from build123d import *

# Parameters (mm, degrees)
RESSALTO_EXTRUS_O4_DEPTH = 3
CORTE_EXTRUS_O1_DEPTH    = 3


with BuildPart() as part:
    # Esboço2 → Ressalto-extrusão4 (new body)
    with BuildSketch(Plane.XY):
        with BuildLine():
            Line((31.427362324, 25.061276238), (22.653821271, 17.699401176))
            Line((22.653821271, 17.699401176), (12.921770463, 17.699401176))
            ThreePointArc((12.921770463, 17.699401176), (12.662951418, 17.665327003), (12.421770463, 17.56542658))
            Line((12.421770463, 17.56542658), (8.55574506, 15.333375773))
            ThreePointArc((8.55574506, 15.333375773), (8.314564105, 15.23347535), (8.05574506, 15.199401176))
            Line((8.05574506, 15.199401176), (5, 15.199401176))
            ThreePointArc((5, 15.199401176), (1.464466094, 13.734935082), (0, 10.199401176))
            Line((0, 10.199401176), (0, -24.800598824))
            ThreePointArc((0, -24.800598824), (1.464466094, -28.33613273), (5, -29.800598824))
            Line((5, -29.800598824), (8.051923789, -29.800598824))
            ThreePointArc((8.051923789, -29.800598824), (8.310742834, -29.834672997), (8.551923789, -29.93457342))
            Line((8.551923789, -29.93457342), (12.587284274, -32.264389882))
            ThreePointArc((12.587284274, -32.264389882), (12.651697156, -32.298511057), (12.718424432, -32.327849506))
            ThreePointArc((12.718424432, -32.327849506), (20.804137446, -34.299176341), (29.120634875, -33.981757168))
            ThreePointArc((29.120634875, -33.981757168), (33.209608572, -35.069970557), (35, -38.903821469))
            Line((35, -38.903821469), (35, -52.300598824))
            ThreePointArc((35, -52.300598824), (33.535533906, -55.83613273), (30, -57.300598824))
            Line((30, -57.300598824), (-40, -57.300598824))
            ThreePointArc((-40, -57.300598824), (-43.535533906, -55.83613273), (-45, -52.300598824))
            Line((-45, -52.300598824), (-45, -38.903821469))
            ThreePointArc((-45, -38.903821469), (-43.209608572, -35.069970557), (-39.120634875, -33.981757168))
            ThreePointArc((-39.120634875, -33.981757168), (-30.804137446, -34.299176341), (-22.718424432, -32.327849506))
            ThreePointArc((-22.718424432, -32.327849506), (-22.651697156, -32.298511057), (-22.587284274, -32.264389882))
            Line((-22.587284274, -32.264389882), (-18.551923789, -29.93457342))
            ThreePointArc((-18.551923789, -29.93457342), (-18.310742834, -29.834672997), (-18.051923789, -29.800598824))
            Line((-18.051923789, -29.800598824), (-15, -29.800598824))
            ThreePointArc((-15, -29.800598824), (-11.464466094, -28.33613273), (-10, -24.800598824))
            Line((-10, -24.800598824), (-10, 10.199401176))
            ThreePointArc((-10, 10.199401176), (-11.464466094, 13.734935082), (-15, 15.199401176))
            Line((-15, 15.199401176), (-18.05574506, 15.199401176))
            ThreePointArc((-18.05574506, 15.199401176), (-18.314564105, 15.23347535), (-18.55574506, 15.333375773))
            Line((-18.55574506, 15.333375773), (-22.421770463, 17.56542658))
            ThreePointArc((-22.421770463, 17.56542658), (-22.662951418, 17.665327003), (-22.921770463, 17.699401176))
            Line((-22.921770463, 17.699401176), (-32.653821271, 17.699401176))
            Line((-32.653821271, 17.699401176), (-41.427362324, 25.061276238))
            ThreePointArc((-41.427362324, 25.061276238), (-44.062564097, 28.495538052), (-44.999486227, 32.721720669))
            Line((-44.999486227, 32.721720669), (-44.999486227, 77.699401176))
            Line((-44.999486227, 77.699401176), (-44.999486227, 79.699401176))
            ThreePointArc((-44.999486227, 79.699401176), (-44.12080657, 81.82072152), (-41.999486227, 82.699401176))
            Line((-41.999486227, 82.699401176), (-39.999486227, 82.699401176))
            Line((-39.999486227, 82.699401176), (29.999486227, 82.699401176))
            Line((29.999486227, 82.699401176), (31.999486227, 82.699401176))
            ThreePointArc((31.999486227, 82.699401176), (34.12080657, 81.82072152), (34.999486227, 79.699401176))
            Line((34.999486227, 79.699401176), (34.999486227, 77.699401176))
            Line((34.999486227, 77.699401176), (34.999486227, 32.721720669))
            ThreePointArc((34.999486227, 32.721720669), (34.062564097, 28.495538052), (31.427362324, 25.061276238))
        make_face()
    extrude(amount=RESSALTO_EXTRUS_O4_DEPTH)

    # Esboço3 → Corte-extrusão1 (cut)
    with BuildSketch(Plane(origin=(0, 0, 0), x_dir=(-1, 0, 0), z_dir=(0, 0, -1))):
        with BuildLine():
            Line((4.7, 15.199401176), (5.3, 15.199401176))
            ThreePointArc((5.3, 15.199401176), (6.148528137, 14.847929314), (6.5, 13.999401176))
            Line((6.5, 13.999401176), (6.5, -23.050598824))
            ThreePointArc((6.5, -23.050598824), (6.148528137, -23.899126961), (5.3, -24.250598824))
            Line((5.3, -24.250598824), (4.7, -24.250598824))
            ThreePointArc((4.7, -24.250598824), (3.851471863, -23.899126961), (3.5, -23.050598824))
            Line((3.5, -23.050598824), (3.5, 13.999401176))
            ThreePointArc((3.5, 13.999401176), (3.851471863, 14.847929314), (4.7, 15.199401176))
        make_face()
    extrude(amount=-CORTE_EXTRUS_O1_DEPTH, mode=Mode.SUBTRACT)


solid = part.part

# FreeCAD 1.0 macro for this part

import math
import FreeCAD as App
import Part
import Sketcher
from FreeCAD import Vector
Q = App.Units.Quantity

doc = App.newDocument("Part")
body = doc.addObject("PartDesign::Body", "Body")

# Sketch on XY plane
sketch1 = body.newObject("Sketcher::SketchObject", "Sketch")
sketch1.AttachmentSupport = (doc.getObject("XY_Plane"), [""])
sketch1.MapMode = "FlatFace"
sketch1.addGeometry([
    Part.LineSegment(Vector(22.653821, 17.699401, 0), Vector(31.427362, 25.061276, 0)),  # 0
    Part.ArcOfCircle(Part.Circle(Vector(24.999486, 32.721721, 0), Vector(0, 0, 1), 10), math.radians(-50), math.radians(0)),  # 1
    Part.LineSegment(Vector(34.999486, 32.721721, 0), Vector(34.999486, 79.699401, 0)),  # 2
    Part.ArcOfCircle(Part.Circle(Vector(31.999486, 79.699401, 0), Vector(0, 0, 1), 3), math.radians(0), math.radians(90)),  # 3
    Part.LineSegment(Vector(31.999486, 82.699401, 0), Vector(-41.999486, 82.699401, 0)),  # 4
    Part.ArcOfCircle(Part.Circle(Vector(-41.999486, 79.699401, 0), Vector(0, 0, 1), 3), math.radians(90), math.radians(180)),  # 5
    Part.LineSegment(Vector(-44.999486, 79.699401, 0), Vector(-44.999486, 32.721721, 0)),  # 6
    Part.ArcOfCircle(Part.Circle(Vector(-34.999486, 32.721721, 0), Vector(0, 0, 1), 10), math.radians(-180), math.radians(-130)),  # 7
    Part.LineSegment(Vector(-41.427362, 25.061276, 0), Vector(-32.653821, 17.699401, 0)),  # 8
    Part.LineSegment(Vector(-32.653821, 17.699401, 0), Vector(-22.92177, 17.699401, 0)),  # 9
    Part.ArcOfCircle(Part.Circle(Vector(-22.92177, 16.699401, 0), Vector(0, 0, 1), 1), math.radians(60), math.radians(90)),  # 10
    Part.LineSegment(Vector(-22.42177, 17.565427, 0), Vector(-18.555745, 15.333376, 0)),  # 11
    Part.ArcOfCircle(Part.Circle(Vector(-18.055745, 16.199401, 0), Vector(0, 0, 1), 1), math.radians(-120), math.radians(-90)),  # 12
    Part.LineSegment(Vector(-18.055745, 15.199401, 0), Vector(-15, 15.199401, 0)),  # 13
    Part.ArcOfCircle(Part.Circle(Vector(-15, 10.199401, 0), Vector(0, 0, 1), 5), math.radians(0), math.radians(90)),  # 14
    Part.LineSegment(Vector(-10, 10.199401, 0), Vector(-10, -24.800599, 0)),  # 15
    Part.ArcOfCircle(Part.Circle(Vector(-15, -24.800599, 0), Vector(0, 0, 1), 5), math.radians(-90), math.radians(0)),  # 16
    Part.LineSegment(Vector(-15, -29.800599, 0), Vector(-18.051924, -29.800599, 0)),  # 17
    Part.ArcOfCircle(Part.Circle(Vector(-18.051924, -30.800599, 0), Vector(0, 0, 1), 1), math.radians(90), math.radians(120)),  # 18
    Part.LineSegment(Vector(-18.551924, -29.934573, 0), Vector(-22.587284, -32.26439, 0)),  # 19
    Part.ArcOfCircle(Part.Circle(Vector(-23.087284, -31.398365, 0), Vector(0, 0, 1), 1), math.radians(-68.354683), math.radians(-59.999999)),  # 20
    Part.ArcOfCircle(Part.Circle(Vector(-33.825, -4.340537, 0), Vector(0, 0, 1), 30.110558), math.radians(-100.129467), math.radians(-68.354682)),  # 21
    Part.ArcOfCircle(Part.Circle(Vector(-40, -38.903821, 0), Vector(0, 0, 1), 5), math.radians(79.870533), math.radians(180)),  # 22
    Part.LineSegment(Vector(-45, -38.903821, 0), Vector(-45, -52.300599, 0)),  # 23
    Part.ArcOfCircle(Part.Circle(Vector(-40, -52.300599, 0), Vector(0, 0, 1), 5), math.radians(180), math.radians(270)),  # 24
    Part.LineSegment(Vector(-40, -57.300599, 0), Vector(30, -57.300599, 0)),  # 25
    Part.ArcOfCircle(Part.Circle(Vector(30, -52.300599, 0), Vector(0, 0, 1), 5), math.radians(-90), math.radians(0)),  # 26
    Part.LineSegment(Vector(35, -52.300599, 0), Vector(35, -38.903821, 0)),  # 27
    Part.ArcOfCircle(Part.Circle(Vector(30, -38.903821, 0), Vector(0, 0, 1), 5), math.radians(0), math.radians(100.129467)),  # 28
    Part.ArcOfCircle(Part.Circle(Vector(23.825, -4.340537, 0), Vector(0, 0, 1), 30.110558), math.radians(-111.645318), math.radians(-79.870533)),  # 29
    Part.ArcOfCircle(Part.Circle(Vector(13.087284, -31.398365, 0), Vector(0, 0, 1), 1), math.radians(-120.000001), math.radians(-111.645317)),  # 30
    Part.LineSegment(Vector(12.587284, -32.26439, 0), Vector(8.551924, -29.934573, 0)),  # 31
    Part.ArcOfCircle(Part.Circle(Vector(8.051924, -30.800599, 0), Vector(0, 0, 1), 1), math.radians(60), math.radians(90)),  # 32
    Part.LineSegment(Vector(8.051924, -29.800599, 0), Vector(5, -29.800599, 0)),  # 33
    Part.ArcOfCircle(Part.Circle(Vector(5, -24.800599, 0), Vector(0, 0, 1), 5), math.radians(180), math.radians(270)),  # 34
    Part.LineSegment(Vector(0, -24.800599, 0), Vector(0, 10.199401, 0)),  # 35
    Part.ArcOfCircle(Part.Circle(Vector(5, 10.199401, 0), Vector(0, 0, 1), 5), math.radians(90), math.radians(180)),  # 36
    Part.LineSegment(Vector(5, 15.199401, 0), Vector(8.055745, 15.199401, 0)),  # 37
    Part.ArcOfCircle(Part.Circle(Vector(8.055745, 16.199401, 0), Vector(0, 0, 1), 1), math.radians(-90), math.radians(-60)),  # 38
    Part.LineSegment(Vector(8.555745, 15.333376, 0), Vector(12.42177, 17.565427, 0)),  # 39
    Part.ArcOfCircle(Part.Circle(Vector(12.92177, 16.699401, 0), Vector(0, 0, 1), 1), math.radians(90), math.radians(120)),  # 40
    Part.LineSegment(Vector(12.92177, 17.699401, 0), Vector(22.653821, 17.699401, 0)),  # 41
], False)
sketch1.addConstraint([
    Sketcher.Constraint("Tangent", 0, 2, 1, 1),
    Sketcher.Constraint("Tangent", 1, 2, 2, 1),
    Sketcher.Constraint("Tangent", 2, 2, 3, 1),
    Sketcher.Constraint("Tangent", 3, 2, 4, 1),
    Sketcher.Constraint("Tangent", 4, 2, 5, 1),
    Sketcher.Constraint("Tangent", 5, 2, 6, 1),
    Sketcher.Constraint("Tangent", 6, 2, 7, 1),
    Sketcher.Constraint("Tangent", 7, 2, 8, 1),
    Sketcher.Constraint("Coincident", 8, 2, 9, 1),
    Sketcher.Constraint("Tangent", 9, 2, 10, 2),
    Sketcher.Constraint("Tangent", 10, 1, 11, 1),
    Sketcher.Constraint("Tangent", 11, 2, 12, 1),
    Sketcher.Constraint("Tangent", 12, 2, 13, 1),
    Sketcher.Constraint("Tangent", 13, 2, 14, 2),
    Sketcher.Constraint("Tangent", 14, 1, 15, 1),
    Sketcher.Constraint("Tangent", 15, 2, 16, 2),
    Sketcher.Constraint("Tangent", 16, 1, 17, 1),
    Sketcher.Constraint("Tangent", 17, 2, 18, 1),
    Sketcher.Constraint("Tangent", 18, 2, 19, 1),
    Sketcher.Constraint("Tangent", 19, 2, 20, 2),
    Sketcher.Constraint("Tangent", 20, 1, 21, 2),
    Sketcher.Constraint("Tangent", 21, 1, 22, 1),
    Sketcher.Constraint("Tangent", 22, 2, 23, 1),
    Sketcher.Constraint("Tangent", 23, 2, 24, 1),
    Sketcher.Constraint("Tangent", 24, 2, 25, 1),
    Sketcher.Constraint("Tangent", 25, 2, 26, 1),
    Sketcher.Constraint("Tangent", 26, 2, 27, 1),
    Sketcher.Constraint("Tangent", 27, 2, 28, 1),
    Sketcher.Constraint("Tangent", 28, 2, 29, 2),
    Sketcher.Constraint("Tangent", 29, 1, 30, 2),
    Sketcher.Constraint("Tangent", 30, 1, 31, 1),
    Sketcher.Constraint("Tangent", 31, 2, 32, 1),
    Sketcher.Constraint("Tangent", 32, 2, 33, 1),
    Sketcher.Constraint("Tangent", 33, 2, 34, 2),
    Sketcher.Constraint("Tangent", 34, 1, 35, 1),
    Sketcher.Constraint("Tangent", 35, 2, 36, 2),
    Sketcher.Constraint("Tangent", 36, 1, 37, 1),
    Sketcher.Constraint("Tangent", 37, 2, 38, 1),
    Sketcher.Constraint("Tangent", 38, 2, 39, 1),
    Sketcher.Constraint("Tangent", 39, 2, 40, 2),
    Sketcher.Constraint("Tangent", 40, 1, 41, 1),
    Sketcher.Constraint("Coincident", 41, 2, 0, 1),
    Sketcher.Constraint("Vertical", 2),
    Sketcher.Constraint("Horizontal", 4),
    Sketcher.Constraint("Vertical", 6),
    Sketcher.Constraint("Horizontal", 9),
    Sketcher.Constraint("Horizontal", 13),
    Sketcher.Constraint("Vertical", 15),
    Sketcher.Constraint("Horizontal", 17),
    Sketcher.Constraint("Vertical", 23),
    Sketcher.Constraint("Horizontal", 25),
    Sketcher.Constraint("Vertical", 27),
    Sketcher.Constraint("Horizontal", 33),
    Sketcher.Constraint("Vertical", 35),
    Sketcher.Constraint("Horizontal", 37),
    Sketcher.Constraint("Horizontal", 41),
    Sketcher.Constraint("Equal", 3, 5),
    Sketcher.Constraint("Equal", 1, 7),
    Sketcher.Constraint("Equal", 10, 12),
    Sketcher.Constraint("Equal", 14, 16),
    Sketcher.Constraint("Equal", 12, 18),
    Sketcher.Constraint("Equal", 18, 20),
    Sketcher.Constraint("Equal", 16, 22),
    Sketcher.Constraint("Equal", 22, 24),
    Sketcher.Constraint("Equal", 24, 26),
    Sketcher.Constraint("Equal", 26, 28),
    Sketcher.Constraint("Equal", 21, 29),
    Sketcher.Constraint("Equal", 20, 30),
    Sketcher.Constraint("Equal", 30, 32),
    Sketcher.Constraint("Equal", 28, 34),
    Sketcher.Constraint("Equal", 34, 36),
    Sketcher.Constraint("Equal", 32, 38),
    Sketcher.Constraint("Equal", 38, 40),
    Sketcher.Constraint("PointOnObject", 34, 1, -2),
    Sketcher.Constraint("Parallel", 11, 31),
    Sketcher.Constraint("Parallel", 19, 39),
    Sketcher.Constraint("Horizontal", 1, 3, 7, 3),
    Sketcher.Constraint("Horizontal", 22, 3, 28, 3),
    Sketcher.Constraint("Horizontal", 21, 3, 29, 3),
    Sketcher.Constraint("Horizontal", 20, 3, 30, 3),
    Sketcher.Constraint("Horizontal", 18, 3, 32, 3),
    Sketcher.Constraint("Horizontal", 14, 3, 36, 3),
    Sketcher.Constraint("Horizontal", 10, 3, 40, 3),
    Sketcher.Constraint("Horizontal", 0, 2, 7, 2),
    Sketcher.Constraint("Horizontal", 19, 2, 30, 1),
    Sketcher.Constraint("Equal", 17, 33),
    Sketcher.Constraint("Equal", 13, 37),
    Sketcher.Constraint("Equal", 9, 41),
    Sketcher.Constraint("Radius", 1, 10.0),
    Sketcher.Constraint("Radius", 3, 3.0),
    Sketcher.Constraint("Radius", 10, 1.0),
    Sketcher.Constraint("Radius", 14, 5.0),
    Sketcher.Constraint("DistanceX", 25, 1, 25, 2, 70.0),
    Sketcher.Constraint("DistanceY", 15, 2, 15, 1, 35.0),
    Sketcher.Constraint("Angle", 0, Q("40 deg")),
    Sketcher.Constraint("Angle", 11, Q("-30 deg")),
    Sketcher.Constraint("DistanceX", 14, 3, -1, 1, 15.0),
    Sketcher.Constraint("DistanceX", 21, 3, -1, 1, 33.825),
    Sketcher.Constraint("Radius", 21, 30.110558),
    Sketcher.Constraint("Distance", 11, 4.464102),
    Sketcher.Constraint("DistanceX", 9, 1, 9, 2, 9.732051),
    Sketcher.Constraint("DistanceY", 2, 1, 2, 2, 46.977681),
    Sketcher.Constraint("DistanceY", -1, 1, 3, 3, 79.699401),
    Sketcher.Constraint("DistanceY", -1, 1, 10, 3, 16.699401),
    Sketcher.Constraint("DistanceY", 24, 3, -1, 1, 52.300599),
    Sketcher.Constraint("DistanceX", 4, 2, 4, 1, 73.998972),
    Sketcher.Constraint("DistanceX", 17, 2, 17, 1, 3.051924),
    Sketcher.Constraint("DistanceY", 23, 2, 23, 1, 13.396777),
])
pad1 = body.newObject("PartDesign::Pad", "Pad")
pad1.Profile = sketch1
pad1.Length = 3

# Sketch on XY plane
sketch2 = body.newObject("Sketcher::SketchObject", "Sketch001")
sketch2.AttachmentSupport = (doc.getObject("XY_Plane"), [""])
sketch2.MapMode = "FlatFace"
sketch2.addGeometry([
    Part.LineSegment(Vector(-5.3, 15.199401, 0), Vector(-4.7, 15.199401, 0)),  # 0
    Part.ArcOfCircle(Part.Circle(Vector(-4.7, 13.999401, 0), Vector(0, 0, 1), 1.2), math.radians(0), math.radians(90)),  # 1
    Part.LineSegment(Vector(-3.5, 13.999401, 0), Vector(-3.5, -23.050599, 0)),  # 2
    Part.ArcOfCircle(Part.Circle(Vector(-4.7, -23.050599, 0), Vector(0, 0, 1), 1.2), math.radians(-90), math.radians(0)),  # 3
    Part.LineSegment(Vector(-4.7, -24.250599, 0), Vector(-5.3, -24.250599, 0)),  # 4
    Part.ArcOfCircle(Part.Circle(Vector(-5.3, -23.050599, 0), Vector(0, 0, 1), 1.2), math.radians(-180), math.radians(-90)),  # 5
    Part.LineSegment(Vector(-6.5, -23.050599, 0), Vector(-6.5, 13.999401, 0)),  # 6
    Part.ArcOfCircle(Part.Circle(Vector(-5.3, 13.999401, 0), Vector(0, 0, 1), 1.2), math.radians(90), math.radians(180)),  # 7
], False)
sketch2.addConstraint([
    Sketcher.Constraint("Tangent", 0, 2, 1, 2),
    Sketcher.Constraint("Tangent", 1, 1, 2, 1),
    Sketcher.Constraint("Tangent", 2, 2, 3, 2),
    Sketcher.Constraint("Tangent", 3, 1, 4, 1),
    Sketcher.Constraint("Tangent", 4, 2, 5, 2),
    Sketcher.Constraint("Tangent", 5, 1, 6, 1),
    Sketcher.Constraint("Tangent", 6, 2, 7, 2),
    Sketcher.Constraint("Tangent", 7, 1, 0, 1),
    Sketcher.Constraint("Horizontal", 0),
    Sketcher.Constraint("Vertical", 2),
    Sketcher.Constraint("Horizontal", 4),
    Sketcher.Constraint("Vertical", 6),
    Sketcher.Constraint("Equal", 1, 3),
    Sketcher.Constraint("Equal", 3, 5),
    Sketcher.Constraint("Equal", 5, 7),
    Sketcher.Constraint("Radius", 1, 1.2),
    Sketcher.Constraint("DistanceX", 0, 1, 0, 2, 0.6),
    Sketcher.Constraint("DistanceY", 2, 2, 2, 1, 37.05),
    Sketcher.Constraint("DistanceX", 1, 3, -1, 1, 4.7),
    Sketcher.Constraint("DistanceY", -1, 1, 1, 3, 13.999401),
])
pocket1 = body.newObject("PartDesign::Pocket", "Pocket")
pocket1.Profile = sketch2
pocket1.Length = 3
pocket1.Reversed = True

doc.recompute()
